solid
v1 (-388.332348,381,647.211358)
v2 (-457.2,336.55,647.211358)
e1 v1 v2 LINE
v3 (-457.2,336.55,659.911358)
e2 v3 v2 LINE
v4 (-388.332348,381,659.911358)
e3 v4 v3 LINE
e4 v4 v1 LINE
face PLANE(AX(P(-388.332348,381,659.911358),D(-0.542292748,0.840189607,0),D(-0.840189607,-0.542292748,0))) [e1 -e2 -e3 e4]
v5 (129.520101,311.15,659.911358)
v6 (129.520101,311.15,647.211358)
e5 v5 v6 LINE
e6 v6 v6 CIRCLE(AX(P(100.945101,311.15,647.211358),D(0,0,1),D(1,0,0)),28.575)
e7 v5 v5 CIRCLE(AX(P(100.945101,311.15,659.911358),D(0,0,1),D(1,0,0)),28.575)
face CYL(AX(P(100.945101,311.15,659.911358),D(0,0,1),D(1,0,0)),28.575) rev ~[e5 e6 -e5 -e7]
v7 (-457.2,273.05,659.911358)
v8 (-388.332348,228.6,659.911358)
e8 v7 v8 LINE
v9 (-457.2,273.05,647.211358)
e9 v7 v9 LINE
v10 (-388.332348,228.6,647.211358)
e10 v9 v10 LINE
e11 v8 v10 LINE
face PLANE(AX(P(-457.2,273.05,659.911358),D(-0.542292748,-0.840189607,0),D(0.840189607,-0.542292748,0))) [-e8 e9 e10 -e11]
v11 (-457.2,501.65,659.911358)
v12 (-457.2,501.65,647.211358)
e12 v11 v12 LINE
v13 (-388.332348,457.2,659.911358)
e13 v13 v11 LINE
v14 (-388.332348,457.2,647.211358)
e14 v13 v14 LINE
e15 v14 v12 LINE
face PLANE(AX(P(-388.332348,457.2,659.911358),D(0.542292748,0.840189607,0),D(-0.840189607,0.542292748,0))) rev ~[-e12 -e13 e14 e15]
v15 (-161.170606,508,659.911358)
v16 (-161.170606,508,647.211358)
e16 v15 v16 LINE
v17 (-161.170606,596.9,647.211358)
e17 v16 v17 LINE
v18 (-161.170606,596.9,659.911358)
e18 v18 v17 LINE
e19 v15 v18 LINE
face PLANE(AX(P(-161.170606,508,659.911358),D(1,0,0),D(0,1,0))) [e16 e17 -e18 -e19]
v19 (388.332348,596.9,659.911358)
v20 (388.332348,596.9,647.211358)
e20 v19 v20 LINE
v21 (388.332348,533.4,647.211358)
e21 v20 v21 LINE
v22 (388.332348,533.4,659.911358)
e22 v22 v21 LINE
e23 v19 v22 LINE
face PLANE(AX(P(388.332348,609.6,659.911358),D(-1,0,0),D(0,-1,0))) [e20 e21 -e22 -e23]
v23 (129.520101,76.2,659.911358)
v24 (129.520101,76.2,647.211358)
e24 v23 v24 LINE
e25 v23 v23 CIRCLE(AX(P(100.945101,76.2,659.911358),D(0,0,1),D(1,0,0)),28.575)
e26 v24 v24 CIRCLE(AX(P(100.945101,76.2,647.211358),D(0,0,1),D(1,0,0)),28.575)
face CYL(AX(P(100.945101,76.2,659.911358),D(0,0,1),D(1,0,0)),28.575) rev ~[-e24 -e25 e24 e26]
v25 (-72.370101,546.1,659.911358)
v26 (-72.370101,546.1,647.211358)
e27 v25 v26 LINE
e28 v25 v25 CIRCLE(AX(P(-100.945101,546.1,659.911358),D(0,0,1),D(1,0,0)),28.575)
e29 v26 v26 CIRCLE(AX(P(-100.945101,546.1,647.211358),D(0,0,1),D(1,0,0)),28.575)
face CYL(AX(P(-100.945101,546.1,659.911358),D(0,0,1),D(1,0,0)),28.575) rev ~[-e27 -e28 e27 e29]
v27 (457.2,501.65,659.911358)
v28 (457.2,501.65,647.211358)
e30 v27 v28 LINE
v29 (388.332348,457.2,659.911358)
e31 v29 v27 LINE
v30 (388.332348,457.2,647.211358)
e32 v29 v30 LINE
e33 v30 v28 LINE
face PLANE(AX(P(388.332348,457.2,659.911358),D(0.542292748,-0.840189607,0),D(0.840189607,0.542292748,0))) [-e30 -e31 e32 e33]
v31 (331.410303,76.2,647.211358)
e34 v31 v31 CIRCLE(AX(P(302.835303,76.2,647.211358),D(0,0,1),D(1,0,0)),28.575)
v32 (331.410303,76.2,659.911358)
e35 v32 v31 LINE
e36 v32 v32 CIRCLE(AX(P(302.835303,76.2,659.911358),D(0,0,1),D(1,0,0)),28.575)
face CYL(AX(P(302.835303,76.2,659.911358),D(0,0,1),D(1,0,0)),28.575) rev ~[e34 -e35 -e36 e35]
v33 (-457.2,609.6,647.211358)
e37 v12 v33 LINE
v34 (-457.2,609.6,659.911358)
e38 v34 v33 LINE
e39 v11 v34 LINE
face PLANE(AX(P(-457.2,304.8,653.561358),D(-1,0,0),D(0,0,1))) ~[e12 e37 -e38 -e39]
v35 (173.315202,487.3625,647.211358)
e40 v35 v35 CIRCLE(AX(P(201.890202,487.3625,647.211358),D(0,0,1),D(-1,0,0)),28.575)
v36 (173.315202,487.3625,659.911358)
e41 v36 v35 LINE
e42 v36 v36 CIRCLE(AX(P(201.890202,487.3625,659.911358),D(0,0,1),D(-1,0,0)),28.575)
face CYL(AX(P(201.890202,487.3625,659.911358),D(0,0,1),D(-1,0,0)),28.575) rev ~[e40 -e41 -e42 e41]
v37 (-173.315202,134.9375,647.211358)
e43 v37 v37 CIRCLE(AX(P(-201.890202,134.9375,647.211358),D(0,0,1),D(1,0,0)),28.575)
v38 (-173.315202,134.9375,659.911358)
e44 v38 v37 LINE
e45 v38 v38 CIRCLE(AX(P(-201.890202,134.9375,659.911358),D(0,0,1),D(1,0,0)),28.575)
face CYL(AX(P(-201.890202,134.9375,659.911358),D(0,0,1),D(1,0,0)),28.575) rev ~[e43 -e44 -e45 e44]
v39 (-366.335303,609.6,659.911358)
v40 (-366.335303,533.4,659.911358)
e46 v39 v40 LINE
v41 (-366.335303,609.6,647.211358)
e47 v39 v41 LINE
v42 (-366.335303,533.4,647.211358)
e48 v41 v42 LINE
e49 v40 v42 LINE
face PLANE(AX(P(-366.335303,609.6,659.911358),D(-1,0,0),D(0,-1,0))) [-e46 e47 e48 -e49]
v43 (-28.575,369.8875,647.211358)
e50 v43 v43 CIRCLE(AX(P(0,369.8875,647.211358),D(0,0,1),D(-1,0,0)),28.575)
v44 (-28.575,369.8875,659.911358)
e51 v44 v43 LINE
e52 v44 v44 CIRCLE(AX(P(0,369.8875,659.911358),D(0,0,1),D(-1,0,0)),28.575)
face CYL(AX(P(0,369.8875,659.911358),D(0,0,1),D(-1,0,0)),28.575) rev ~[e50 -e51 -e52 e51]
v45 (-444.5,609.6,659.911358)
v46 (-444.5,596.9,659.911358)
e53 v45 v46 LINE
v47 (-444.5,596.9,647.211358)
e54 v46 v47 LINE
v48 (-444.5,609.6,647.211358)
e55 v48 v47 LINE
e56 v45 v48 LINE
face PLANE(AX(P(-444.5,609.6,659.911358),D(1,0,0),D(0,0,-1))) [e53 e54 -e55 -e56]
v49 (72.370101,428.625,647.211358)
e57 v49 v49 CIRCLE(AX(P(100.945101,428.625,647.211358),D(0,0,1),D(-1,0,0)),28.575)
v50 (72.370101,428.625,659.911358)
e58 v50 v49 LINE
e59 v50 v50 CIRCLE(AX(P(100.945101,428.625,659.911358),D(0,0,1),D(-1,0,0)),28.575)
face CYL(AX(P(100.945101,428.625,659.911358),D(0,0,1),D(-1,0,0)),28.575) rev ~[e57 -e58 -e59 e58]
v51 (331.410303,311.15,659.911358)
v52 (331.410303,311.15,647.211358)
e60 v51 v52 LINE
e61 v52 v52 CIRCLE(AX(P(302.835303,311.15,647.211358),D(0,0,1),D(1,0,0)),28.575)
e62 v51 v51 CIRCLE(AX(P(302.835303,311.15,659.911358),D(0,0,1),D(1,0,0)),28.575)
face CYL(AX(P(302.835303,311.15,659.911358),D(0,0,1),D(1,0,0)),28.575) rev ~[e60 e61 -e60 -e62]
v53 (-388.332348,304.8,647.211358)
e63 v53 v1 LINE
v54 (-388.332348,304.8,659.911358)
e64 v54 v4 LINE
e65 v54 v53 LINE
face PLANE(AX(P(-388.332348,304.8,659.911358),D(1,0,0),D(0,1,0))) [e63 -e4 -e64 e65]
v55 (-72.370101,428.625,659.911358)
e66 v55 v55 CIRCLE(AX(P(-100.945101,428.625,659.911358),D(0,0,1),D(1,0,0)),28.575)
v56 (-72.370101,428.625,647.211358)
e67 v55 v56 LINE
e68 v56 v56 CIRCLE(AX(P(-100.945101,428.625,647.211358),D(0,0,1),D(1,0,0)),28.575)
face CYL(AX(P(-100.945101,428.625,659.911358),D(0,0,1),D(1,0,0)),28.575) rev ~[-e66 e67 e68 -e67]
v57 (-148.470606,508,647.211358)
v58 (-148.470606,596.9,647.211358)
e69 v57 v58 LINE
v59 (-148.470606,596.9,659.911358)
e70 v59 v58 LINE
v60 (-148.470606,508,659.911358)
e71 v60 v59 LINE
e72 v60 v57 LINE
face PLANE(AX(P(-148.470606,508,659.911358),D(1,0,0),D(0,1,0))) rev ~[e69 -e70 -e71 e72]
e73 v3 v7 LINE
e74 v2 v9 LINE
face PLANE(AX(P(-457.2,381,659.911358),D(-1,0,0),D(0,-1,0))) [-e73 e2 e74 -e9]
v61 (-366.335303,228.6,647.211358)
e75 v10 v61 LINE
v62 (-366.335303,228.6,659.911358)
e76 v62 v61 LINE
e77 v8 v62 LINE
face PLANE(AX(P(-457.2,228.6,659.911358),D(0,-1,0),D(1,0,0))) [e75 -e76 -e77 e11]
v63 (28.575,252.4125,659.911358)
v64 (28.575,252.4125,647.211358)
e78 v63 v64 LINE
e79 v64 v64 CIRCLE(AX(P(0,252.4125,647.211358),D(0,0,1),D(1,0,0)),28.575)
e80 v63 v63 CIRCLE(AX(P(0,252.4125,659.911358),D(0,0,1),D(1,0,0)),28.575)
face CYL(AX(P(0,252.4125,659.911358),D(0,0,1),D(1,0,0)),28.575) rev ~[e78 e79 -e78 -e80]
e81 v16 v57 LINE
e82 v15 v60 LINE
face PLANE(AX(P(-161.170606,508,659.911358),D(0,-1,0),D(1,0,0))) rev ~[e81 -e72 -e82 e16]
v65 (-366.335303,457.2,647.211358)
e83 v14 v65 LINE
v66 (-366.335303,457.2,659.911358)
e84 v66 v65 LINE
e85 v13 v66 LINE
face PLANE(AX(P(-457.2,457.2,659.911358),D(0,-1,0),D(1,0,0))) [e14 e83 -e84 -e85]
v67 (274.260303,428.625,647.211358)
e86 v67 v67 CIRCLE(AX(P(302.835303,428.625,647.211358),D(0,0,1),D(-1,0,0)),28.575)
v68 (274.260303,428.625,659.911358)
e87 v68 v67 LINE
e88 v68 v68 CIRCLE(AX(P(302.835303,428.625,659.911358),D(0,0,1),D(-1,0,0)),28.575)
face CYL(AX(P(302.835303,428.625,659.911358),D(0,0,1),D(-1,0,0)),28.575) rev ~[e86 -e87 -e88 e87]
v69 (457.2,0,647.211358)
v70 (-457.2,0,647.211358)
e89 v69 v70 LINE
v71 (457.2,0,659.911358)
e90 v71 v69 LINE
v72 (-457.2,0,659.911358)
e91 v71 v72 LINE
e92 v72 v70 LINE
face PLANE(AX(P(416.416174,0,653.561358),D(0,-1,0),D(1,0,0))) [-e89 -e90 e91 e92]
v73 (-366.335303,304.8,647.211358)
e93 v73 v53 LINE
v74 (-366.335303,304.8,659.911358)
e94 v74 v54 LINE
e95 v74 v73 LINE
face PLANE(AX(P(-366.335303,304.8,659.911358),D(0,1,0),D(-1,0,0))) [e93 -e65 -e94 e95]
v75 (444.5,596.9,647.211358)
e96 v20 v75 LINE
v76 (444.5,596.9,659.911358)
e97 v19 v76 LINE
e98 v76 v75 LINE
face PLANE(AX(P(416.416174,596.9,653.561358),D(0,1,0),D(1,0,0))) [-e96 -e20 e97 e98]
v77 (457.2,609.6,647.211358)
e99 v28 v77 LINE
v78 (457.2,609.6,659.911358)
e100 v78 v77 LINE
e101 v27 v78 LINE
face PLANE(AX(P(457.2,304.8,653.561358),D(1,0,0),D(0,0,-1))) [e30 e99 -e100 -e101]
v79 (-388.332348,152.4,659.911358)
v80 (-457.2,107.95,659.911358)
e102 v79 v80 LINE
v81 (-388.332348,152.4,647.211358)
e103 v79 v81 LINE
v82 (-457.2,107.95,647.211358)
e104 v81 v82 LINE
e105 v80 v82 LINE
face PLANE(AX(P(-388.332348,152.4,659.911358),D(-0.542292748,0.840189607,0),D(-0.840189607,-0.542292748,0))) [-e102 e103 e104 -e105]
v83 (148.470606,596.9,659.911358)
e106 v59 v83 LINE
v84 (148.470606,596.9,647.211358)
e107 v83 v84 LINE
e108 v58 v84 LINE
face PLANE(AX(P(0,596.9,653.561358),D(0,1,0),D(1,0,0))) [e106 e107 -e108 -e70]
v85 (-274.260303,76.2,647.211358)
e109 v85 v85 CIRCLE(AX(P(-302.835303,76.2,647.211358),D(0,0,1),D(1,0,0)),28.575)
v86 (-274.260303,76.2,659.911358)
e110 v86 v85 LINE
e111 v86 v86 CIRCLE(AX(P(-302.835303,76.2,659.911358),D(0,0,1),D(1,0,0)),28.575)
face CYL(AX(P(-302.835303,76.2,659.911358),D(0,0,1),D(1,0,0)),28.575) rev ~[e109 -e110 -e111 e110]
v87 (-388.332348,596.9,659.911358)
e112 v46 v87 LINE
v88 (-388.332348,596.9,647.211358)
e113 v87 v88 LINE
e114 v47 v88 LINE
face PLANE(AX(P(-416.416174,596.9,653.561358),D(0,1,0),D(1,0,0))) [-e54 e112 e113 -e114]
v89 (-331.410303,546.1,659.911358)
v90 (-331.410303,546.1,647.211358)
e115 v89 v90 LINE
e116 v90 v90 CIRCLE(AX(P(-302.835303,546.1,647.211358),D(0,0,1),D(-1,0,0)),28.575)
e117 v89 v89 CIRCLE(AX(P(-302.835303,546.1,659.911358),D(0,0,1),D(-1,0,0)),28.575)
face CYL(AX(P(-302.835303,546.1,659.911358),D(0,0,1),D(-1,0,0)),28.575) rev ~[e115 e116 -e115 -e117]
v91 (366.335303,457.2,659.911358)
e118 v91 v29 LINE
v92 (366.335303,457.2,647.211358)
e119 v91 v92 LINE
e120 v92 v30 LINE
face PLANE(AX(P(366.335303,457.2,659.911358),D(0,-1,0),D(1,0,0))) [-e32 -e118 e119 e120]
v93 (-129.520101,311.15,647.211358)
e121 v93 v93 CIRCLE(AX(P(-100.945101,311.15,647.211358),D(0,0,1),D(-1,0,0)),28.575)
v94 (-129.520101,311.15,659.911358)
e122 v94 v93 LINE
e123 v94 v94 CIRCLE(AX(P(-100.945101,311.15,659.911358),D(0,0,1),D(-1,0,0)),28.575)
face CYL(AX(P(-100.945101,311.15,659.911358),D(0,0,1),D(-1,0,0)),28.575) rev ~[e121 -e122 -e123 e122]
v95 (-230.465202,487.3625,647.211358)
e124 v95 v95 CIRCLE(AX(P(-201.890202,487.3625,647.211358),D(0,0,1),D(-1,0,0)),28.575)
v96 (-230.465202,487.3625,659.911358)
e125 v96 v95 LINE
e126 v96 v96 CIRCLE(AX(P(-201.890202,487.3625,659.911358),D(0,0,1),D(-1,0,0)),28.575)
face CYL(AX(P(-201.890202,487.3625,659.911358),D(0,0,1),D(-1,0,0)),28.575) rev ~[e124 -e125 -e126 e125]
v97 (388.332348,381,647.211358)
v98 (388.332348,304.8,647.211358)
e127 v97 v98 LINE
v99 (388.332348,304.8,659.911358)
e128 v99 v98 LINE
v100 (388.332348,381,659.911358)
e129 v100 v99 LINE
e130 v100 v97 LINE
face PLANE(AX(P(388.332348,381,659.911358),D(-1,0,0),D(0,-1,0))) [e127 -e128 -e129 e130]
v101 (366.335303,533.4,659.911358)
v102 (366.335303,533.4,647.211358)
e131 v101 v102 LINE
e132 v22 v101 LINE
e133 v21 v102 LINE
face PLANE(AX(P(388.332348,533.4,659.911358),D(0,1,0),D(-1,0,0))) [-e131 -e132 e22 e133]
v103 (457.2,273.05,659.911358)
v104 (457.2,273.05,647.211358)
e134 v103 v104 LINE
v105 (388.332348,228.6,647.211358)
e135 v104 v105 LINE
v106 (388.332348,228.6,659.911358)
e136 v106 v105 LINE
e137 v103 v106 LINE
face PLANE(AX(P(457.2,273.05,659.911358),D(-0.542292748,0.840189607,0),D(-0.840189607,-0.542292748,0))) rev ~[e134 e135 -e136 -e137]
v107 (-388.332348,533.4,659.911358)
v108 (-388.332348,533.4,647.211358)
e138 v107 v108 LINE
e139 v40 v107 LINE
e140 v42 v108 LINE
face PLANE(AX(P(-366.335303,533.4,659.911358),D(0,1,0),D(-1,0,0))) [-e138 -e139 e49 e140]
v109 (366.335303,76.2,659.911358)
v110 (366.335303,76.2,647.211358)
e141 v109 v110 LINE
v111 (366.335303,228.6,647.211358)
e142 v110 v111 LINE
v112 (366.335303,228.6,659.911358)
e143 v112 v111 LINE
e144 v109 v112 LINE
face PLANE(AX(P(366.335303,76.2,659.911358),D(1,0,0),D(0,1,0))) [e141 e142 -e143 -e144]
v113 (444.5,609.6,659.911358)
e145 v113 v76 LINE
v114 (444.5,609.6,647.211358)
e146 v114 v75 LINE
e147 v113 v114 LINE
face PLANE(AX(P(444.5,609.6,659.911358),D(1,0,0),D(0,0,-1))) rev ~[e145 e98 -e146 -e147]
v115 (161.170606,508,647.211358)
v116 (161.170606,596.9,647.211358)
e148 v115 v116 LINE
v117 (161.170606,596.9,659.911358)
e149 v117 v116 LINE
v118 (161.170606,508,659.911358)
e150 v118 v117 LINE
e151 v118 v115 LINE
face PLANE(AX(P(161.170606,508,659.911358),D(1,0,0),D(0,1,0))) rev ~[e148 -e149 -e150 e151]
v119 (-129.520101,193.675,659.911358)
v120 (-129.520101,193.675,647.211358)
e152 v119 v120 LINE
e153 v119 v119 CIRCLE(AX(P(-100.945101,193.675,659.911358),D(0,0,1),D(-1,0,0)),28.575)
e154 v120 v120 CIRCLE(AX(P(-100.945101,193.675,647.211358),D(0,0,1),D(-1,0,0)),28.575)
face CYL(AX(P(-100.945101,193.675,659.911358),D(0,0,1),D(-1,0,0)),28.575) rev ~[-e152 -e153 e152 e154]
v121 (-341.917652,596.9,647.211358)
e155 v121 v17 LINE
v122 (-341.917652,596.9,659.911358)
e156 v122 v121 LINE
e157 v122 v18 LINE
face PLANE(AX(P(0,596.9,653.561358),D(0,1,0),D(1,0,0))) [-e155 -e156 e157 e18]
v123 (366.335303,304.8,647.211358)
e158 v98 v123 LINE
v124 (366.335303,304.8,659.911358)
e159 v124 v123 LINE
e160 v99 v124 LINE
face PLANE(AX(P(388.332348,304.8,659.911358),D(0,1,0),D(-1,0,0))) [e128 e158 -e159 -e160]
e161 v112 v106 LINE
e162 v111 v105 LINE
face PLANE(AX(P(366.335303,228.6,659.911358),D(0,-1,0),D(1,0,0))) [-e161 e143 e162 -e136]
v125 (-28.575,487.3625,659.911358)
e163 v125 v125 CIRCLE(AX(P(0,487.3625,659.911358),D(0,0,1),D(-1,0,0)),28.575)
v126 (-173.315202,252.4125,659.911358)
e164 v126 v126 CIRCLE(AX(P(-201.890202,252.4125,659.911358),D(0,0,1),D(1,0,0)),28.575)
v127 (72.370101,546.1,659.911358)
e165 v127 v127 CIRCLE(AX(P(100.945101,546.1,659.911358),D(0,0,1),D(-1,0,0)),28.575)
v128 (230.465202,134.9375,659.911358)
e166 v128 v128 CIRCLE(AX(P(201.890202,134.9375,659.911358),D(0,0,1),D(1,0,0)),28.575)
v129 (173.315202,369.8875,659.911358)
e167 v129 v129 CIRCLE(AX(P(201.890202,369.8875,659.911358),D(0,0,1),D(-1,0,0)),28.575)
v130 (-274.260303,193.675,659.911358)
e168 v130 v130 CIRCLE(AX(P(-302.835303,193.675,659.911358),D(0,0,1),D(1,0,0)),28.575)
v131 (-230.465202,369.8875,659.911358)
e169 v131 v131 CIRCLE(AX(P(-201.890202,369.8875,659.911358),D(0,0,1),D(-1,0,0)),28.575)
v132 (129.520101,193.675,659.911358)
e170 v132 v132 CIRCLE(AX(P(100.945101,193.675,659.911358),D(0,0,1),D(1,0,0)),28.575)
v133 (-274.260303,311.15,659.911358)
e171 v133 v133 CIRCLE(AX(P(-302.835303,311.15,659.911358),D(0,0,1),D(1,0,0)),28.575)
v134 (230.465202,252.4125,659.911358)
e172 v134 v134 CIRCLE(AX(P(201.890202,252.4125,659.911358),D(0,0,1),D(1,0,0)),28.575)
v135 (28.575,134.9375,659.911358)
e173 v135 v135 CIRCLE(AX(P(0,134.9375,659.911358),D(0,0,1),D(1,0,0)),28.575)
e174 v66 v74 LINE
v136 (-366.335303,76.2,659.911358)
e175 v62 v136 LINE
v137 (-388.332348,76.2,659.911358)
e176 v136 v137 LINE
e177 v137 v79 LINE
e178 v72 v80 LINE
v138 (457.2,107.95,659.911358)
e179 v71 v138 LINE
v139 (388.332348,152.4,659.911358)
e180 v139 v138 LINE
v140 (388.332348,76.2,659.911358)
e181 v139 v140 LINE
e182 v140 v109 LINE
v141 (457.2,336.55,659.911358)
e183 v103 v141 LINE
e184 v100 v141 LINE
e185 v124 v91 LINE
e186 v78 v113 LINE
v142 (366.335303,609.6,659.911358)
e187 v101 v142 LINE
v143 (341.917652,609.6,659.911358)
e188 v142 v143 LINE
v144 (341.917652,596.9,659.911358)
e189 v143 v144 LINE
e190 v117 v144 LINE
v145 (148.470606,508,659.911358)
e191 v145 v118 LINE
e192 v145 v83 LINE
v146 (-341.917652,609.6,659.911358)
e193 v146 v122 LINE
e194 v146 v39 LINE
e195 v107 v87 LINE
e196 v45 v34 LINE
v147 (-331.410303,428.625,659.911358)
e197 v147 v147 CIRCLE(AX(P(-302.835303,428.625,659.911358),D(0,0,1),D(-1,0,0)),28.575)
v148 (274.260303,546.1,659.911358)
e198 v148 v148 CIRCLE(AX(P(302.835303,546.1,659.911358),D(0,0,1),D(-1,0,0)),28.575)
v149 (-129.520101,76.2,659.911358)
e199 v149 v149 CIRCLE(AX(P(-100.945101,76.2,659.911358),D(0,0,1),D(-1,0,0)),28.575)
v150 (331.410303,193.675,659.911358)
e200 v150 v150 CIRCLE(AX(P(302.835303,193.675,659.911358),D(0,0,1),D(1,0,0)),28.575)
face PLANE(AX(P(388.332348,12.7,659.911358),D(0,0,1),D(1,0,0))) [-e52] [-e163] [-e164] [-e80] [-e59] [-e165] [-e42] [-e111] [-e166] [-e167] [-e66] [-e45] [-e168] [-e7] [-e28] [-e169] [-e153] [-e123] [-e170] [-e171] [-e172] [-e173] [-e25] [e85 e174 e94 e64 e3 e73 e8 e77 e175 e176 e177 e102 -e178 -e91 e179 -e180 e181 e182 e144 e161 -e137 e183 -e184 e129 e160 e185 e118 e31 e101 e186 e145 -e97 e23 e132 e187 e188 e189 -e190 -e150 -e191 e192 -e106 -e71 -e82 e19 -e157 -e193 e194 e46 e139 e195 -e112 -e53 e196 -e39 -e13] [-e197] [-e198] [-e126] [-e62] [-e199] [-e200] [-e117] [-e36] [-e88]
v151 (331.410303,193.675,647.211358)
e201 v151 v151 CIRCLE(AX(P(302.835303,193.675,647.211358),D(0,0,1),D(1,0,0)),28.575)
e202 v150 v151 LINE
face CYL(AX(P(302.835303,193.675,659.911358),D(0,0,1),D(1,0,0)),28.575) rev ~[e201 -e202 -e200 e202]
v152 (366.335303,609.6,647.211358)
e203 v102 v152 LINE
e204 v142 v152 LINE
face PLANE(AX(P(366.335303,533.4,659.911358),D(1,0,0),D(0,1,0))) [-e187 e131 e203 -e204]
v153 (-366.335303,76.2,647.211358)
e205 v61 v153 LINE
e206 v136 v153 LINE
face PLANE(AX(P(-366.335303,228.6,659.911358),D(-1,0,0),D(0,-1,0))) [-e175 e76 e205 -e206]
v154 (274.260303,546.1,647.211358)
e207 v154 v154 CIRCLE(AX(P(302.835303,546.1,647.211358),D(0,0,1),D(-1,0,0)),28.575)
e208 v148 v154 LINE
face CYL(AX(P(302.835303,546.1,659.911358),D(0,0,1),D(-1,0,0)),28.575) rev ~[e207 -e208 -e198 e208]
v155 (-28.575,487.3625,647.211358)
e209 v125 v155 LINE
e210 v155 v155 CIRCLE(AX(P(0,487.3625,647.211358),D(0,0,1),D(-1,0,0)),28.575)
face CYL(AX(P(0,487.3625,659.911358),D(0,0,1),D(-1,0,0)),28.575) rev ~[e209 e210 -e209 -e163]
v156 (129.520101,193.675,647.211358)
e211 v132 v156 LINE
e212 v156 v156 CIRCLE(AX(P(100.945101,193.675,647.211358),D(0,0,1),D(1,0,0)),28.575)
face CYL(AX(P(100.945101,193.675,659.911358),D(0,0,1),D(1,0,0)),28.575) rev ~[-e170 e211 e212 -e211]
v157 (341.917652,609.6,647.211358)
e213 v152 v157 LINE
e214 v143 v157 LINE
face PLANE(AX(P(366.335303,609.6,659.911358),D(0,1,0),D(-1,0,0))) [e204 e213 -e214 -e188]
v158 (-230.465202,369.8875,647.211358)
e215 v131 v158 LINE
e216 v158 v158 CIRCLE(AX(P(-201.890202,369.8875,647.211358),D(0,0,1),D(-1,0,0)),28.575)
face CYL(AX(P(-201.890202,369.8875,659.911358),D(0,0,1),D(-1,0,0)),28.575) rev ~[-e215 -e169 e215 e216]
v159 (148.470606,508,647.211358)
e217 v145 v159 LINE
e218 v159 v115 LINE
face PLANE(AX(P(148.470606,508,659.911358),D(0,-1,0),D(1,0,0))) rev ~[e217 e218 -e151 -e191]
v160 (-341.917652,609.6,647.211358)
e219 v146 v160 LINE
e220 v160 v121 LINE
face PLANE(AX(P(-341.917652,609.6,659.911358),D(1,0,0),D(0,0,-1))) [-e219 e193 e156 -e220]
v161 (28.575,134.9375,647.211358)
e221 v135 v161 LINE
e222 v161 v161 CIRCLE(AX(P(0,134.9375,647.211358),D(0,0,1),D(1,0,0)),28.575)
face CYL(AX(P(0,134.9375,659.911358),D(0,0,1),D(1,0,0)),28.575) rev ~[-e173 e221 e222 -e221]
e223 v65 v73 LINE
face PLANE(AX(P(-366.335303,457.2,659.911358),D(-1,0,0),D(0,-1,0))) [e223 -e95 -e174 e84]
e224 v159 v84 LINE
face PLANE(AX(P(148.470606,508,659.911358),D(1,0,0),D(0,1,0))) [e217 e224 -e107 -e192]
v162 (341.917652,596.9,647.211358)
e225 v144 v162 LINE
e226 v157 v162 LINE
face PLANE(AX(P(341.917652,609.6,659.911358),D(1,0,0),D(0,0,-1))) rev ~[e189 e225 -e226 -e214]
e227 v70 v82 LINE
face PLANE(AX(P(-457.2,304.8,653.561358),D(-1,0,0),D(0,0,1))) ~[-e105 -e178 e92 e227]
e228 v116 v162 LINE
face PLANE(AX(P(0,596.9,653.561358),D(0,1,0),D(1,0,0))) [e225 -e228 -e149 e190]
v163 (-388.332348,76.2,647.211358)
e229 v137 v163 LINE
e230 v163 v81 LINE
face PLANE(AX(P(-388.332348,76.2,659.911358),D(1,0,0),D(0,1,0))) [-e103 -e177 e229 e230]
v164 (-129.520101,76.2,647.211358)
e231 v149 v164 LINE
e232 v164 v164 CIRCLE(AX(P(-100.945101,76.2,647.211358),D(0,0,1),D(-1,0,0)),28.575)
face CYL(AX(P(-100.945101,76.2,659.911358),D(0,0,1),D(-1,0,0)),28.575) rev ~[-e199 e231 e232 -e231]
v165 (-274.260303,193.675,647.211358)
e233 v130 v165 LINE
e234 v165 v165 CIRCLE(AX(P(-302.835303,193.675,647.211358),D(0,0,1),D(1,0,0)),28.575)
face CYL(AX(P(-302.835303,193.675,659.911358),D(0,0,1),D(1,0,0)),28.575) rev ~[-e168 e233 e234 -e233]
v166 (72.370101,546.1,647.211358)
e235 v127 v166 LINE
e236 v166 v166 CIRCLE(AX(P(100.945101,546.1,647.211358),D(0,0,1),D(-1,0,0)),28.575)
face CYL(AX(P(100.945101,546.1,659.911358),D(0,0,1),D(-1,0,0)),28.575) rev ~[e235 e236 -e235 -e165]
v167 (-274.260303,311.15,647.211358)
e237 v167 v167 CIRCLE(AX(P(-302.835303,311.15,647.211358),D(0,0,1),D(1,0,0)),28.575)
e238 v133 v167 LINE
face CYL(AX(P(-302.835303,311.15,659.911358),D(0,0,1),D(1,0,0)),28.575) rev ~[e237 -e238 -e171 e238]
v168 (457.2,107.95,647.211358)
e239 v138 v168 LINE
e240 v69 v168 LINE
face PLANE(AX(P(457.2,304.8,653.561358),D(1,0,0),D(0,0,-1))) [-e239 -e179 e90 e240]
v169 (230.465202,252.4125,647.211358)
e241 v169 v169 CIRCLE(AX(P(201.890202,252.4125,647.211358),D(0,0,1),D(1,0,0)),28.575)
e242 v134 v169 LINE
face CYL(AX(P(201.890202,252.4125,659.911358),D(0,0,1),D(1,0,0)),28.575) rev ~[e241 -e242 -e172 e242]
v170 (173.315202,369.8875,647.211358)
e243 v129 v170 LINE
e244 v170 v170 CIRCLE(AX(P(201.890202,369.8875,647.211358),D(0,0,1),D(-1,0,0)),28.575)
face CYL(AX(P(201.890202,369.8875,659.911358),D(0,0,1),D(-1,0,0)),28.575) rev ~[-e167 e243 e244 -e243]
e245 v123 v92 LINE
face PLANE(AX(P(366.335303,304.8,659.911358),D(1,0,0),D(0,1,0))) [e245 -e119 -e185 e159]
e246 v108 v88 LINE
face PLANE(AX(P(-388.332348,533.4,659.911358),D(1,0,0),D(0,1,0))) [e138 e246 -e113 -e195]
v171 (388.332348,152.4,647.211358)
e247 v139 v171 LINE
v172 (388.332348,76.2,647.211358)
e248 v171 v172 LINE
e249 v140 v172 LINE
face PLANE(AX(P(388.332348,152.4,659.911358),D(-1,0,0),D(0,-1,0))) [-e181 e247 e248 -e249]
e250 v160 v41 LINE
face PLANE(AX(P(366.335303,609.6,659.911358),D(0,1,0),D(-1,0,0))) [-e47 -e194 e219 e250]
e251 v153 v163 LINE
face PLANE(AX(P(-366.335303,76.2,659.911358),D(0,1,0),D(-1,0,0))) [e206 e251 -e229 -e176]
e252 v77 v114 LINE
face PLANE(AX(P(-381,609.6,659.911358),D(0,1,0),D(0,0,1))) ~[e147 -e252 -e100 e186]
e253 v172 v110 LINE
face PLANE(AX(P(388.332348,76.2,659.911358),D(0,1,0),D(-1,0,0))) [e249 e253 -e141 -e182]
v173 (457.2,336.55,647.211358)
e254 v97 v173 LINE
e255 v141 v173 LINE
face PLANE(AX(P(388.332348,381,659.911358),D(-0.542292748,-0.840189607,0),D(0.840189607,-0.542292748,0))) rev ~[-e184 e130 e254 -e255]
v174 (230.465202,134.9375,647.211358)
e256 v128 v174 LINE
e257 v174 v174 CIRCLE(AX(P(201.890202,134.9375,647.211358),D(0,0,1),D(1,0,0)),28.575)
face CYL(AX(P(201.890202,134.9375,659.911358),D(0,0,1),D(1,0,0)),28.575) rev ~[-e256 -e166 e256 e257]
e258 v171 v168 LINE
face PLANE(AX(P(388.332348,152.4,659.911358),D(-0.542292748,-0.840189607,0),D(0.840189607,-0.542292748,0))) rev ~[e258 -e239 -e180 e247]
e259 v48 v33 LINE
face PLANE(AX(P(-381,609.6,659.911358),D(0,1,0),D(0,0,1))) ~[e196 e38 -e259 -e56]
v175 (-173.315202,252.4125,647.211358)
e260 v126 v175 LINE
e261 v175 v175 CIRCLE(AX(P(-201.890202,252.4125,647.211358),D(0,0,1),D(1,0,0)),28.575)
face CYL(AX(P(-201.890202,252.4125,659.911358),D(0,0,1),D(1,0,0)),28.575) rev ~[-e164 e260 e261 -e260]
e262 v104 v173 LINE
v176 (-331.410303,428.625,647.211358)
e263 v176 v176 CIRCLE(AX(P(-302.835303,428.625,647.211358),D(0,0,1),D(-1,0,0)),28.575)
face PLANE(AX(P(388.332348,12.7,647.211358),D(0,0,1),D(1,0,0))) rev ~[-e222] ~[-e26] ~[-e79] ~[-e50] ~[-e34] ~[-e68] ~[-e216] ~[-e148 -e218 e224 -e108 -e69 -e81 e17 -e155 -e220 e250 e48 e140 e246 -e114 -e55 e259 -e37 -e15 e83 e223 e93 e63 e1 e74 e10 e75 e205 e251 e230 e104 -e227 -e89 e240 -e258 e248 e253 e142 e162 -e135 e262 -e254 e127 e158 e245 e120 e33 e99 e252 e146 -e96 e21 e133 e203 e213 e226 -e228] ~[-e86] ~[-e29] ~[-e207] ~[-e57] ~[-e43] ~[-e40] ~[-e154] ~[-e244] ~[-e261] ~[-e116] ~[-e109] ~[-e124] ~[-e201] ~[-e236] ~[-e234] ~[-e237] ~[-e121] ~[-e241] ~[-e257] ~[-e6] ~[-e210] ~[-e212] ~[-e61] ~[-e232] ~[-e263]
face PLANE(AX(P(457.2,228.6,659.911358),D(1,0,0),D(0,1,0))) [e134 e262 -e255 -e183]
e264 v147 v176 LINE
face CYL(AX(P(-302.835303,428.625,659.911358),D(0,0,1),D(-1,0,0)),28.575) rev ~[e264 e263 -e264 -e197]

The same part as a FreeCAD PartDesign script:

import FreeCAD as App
import Part
import Sketcher
Q = App.Units.Quantity


def add_polygon(sketch, points):
    """Adds a closed chain of lines whose ends are joined by coincident constraints."""
    first, n = sketch.GeometryCount, len(points)
    for a, b in zip(points, points[1:] + points[:1]):
        sketch.addGeometry(Part.LineSegment(App.Vector(*a, 0), App.Vector(*b, 0)), False)
    for i in range(n):
        sketch.addConstraint(Sketcher.Constraint("Coincident", first + i, 2, first + (i + 1) % n, 1))

doc = App.newDocument("Part")
params = doc.addObject("Spreadsheet::Sheet", "Params")
for row, (alias, value) in enumerate([
    ("sketch1_width", "30 in"),
    ("sketch1_height", "0.5 in"),
    ("pad1_length", "24 in"),
    ("sketch2_width", "24 in"),
    ("sketch2_height", "0.5 in"),
    ("pad2_length", "3 in"),
    ("sketch3_width", "36 in"),
    ("sketch3_height", "3 in"),
    ("sketch3_height2", "6 in"),
    ("pocket1_length", "0.5 in"),
    ("sketch4_height", "0.5 in"),
    ("pocket2_length", "0.5 in"),
    ("sketch5_height", "1.75 in"),
    ("pocket3_length", "0.5 in"),
    ("sketch6_width", "0.5 in"),
    ("sketch6_height", "3.5 in"),
    ("pocket4_length", "0.5 in"),
    ("sketch7_diameter", "2.25 in"),
    ("sketch8_width", "0.5 in"),
    ("pad3_length", "3.5 in"),
    ("sketch9_height", "0.5 in"),
    ("pad4_length", "0.5 in"),
], start=1):
    params.set(f"A{row}", alias)
    params.set(f"B{row}", "=" + value)
    params.setAlias(f"B{row}", alias)

body = doc.addObject("PartDesign::Body", "Body")

# Sketch on XZ plane
sketch1 = body.newObject("Sketcher::SketchObject", "Sketch")
sketch1.AttachmentSupport = (doc.getObject("XZ_Plane"), [""])
sketch1.MapMode = "FlatFace"
add_polygon(sketch1, [(-381, 647), (-381, 660), (381, 660), (381, 647)])  # lines 0-3
sketch1.addConstraint([
    Sketcher.Constraint("Vertical", 0),
    Sketcher.Constraint("Horizontal", 1),
    Sketcher.Constraint("Vertical", 2),
    Sketcher.Constraint("Horizontal", 3),
    Sketcher.Constraint("DistanceX", 1, 1, 1, 2, Q("30 in")),
    Sketcher.Constraint("DistanceY", 0, 1, 0, 2, Q("0.5 in")),
    Sketcher.Constraint("DistanceX", 0, 2, -1, 1, Q("15 in")),
    Sketcher.Constraint("DistanceY", -1, 1, 0, 2, 659.911358),
])
sketch1.setExpression("Constraints[8]", "Params.sketch1_width")
sketch1.setExpression("Constraints[9]", "Params.sketch1_height")
pad1 = body.newObject("PartDesign::Pad", "Pad")
pad1.Profile = sketch1
pad1.setExpression("Length", "Params.pad1_length")
pad1.Reversed = True

# Sketch on YZ plane
sketch2 = body.newObject("Sketcher::SketchObject", "Sketch001")
sketch2.AttachmentSupport = (doc.getObject("YZ_Plane"), [""])
sketch2.MapMode = "FlatFace"
sketch2.AttachmentOffset = App.Placement(App.Vector(0, 0, 15 * 25.4), App.Rotation())
add_polygon(sketch2, [(610, 660), (0, 660), (0, 647), (610, 647)])  # lines 0-3
sketch2.addConstraint([
    Sketcher.Constraint("Horizontal", 0),
    Sketcher.Constraint("Vertical", 1),
    Sketcher.Constraint("Horizontal", 2),
    Sketcher.Constraint("Vertical", 3),
    Sketcher.Constraint("PointOnObject", 0, 2, -2),
    Sketcher.Constraint("DistanceX", 0, 2, 0, 1, Q("24 in")),
    Sketcher.Constraint("DistanceY", 1, 2, 1, 1, Q("0.5 in")),
    Sketcher.Constraint("DistanceY", -1, 1, 0, 2, 659.911358),
])
sketch2.setExpression("Constraints[9]", "Params.sketch2_width")
sketch2.setExpression("Constraints[10]", "Params.sketch2_height")
pad2 = body.newObject("PartDesign::Pad", "Pad001")
pad2.Profile = sketch2
pad2.setExpression("Length", "Params.pad2_length")
doc.recompute()

mirrored = body.newObject("PartDesign::Mirrored", "Mirrored")
mirrored.Originals = [pad2]
mirrored.MirrorPlane = (doc.getObject("YZ_Plane"), [""])
body.Tip = mirrored

# Sketch on XY plane
sketch3 = body.newObject("Sketcher::SketchObject", "Sketch002")
sketch3.AttachmentSupport = (doc.getObject("XY_Plane"), [""])
sketch3.MapMode = "FlatFace"
sketch3.AttachmentOffset = App.Placement(App.Vector(0, 0, 659.911358), App.Rotation())
add_polygon(sketch3, [(-568, 721), (-568, -111), (568, -111), (568, 721)])  # lines 0-3
add_polygon(sketch3, [(-366, 610), (366, 610), (366, 533), (388, 533), (388, 610), (457, 610), (457, 457), (366, 457), (366, 305), (388, 305), (388, 381), (457, 381), (457, 229), (366, 229), (366, 76), (388, 76), (388, 152), (457, 152), (457, 0), (-457, 0), (-457, 152), (-388, 152), (-388, 76), (-366, 76), (-366, 229), (-457, 229), (-457, 381), (-388, 381), (-388, 305), (-366, 305), (-366, 457), (-457, 457), (-457, 610), (-388, 610), (-388, 533), (-366, 533)])  # lines 4-39
sketch3.addConstraint([
    Sketcher.Constraint("Vertical", 0),
    Sketcher.Constraint("Horizontal", 1),
    Sketcher.Constraint("Vertical", 2),
    Sketcher.Constraint("Horizontal", 3),
    Sketcher.Constraint("Horizontal", 4),
    Sketcher.Constraint("Vertical", 5),
    Sketcher.Constraint("Horizontal", 6),
    Sketcher.Constraint("Vertical", 7),
    Sketcher.Constraint("Horizontal", 8),
    Sketcher.Constraint("Vertical", 9),
    Sketcher.Constraint("Horizontal", 10),
    Sketcher.Constraint("Vertical", 11),
    Sketcher.Constraint("Horizontal", 12),
    Sketcher.Constraint("Vertical", 13),
    Sketcher.Constraint("Horizontal", 14),
    Sketcher.Constraint("Vertical", 15),
    Sketcher.Constraint("Horizontal", 16),
    Sketcher.Constraint("Vertical", 17),
    Sketcher.Constraint("Horizontal", 18),
    Sketcher.Constraint("Vertical", 19),
    Sketcher.Constraint("Horizontal", 20),
    Sketcher.Constraint("Vertical", 21),
    Sketcher.Constraint("Horizontal", 22),
    Sketcher.Constraint("Vertical", 23),
    Sketcher.Constraint("Horizontal", 24),
    Sketcher.Constraint("Vertical", 25),
    Sketcher.Constraint("Horizontal", 26),
    Sketcher.Constraint("Vertical", 27),
    Sketcher.Constraint("Horizontal", 28),
    Sketcher.Constraint("Vertical", 29),
    Sketcher.Constraint("Horizontal", 30),
    Sketcher.Constraint("Vertical", 31),
    Sketcher.Constraint("Horizontal", 32),
    Sketcher.Constraint("Vertical", 33),
    Sketcher.Constraint("Horizontal", 34),
    Sketcher.Constraint("Vertical", 35),
    Sketcher.Constraint("Horizontal", 36),
    Sketcher.Constraint("Vertical", 37),
    Sketcher.Constraint("Horizontal", 38),
    Sketcher.Constraint("Vertical", 39),
    Sketcher.Constraint("Symmetric", 21, 2, 22, 2, -1, 1),
    Sketcher.Constraint("Symmetric", 19, 2, 24, 2, -2),
    Sketcher.Constraint("Symmetric", 17, 2, 26, 2, -2),
    Sketcher.Constraint("Symmetric", 15, 2, 28, 2, -2),
    Sketcher.Constraint("Symmetric", 13, 2, 30, 2, -2),
    Sketcher.Constraint("Symmetric", 11, 2, 32, 2, -2),
    Sketcher.Constraint("Symmetric", 9, 2, 34, 2, -2),
    Sketcher.Constraint("Symmetric", 7, 2, 36, 2, -2),
    Sketcher.Constraint("Symmetric", 5, 2, 38, 2, -2),
    Sketcher.Constraint("Horizontal", 4, 2, 7, 2),
    Sketcher.Constraint("Vertical", 5, 2, 10, 2),
    Sketcher.Constraint("Vertical", 7, 2, 12, 2),
    Sketcher.Constraint("Vertical", 9, 2, 14, 2),
    Sketcher.Constraint("Vertical", 11, 2, 16, 2),
    Sketcher.Constraint("Vertical", 13, 2, 18, 2),
    Sketcher.Constraint("Vertical", 15, 2, 20, 2),
    Sketcher.Constraint("Equal", 9, 11),
    Sketcher.Constraint("Equal", 7, 13),
    Sketcher.Constraint("Equal", 11, 15),
    Sketcher.Constraint("Equal", 15, 17),
    Sketcher.Constraint("Equal", 13, 19),
    Sketcher.Constraint("Equal", 17, 21),
    Sketcher.Constraint("DistanceX", 22, 2, 22, 1, Q("36 in")),
    Sketcher.Constraint("DistanceY", 5, 2, 5, 1, Q("3 in")),
    Sketcher.Constraint("DistanceY", 9, 2, 9, 1, Q("6 in")),
    Sketcher.Constraint("DistanceX", 1, 1, 1, 2, 1136.21),
    Sketcher.Constraint("DistanceY", 0, 2, 0, 1, 831.41),
    Sketcher.Constraint("DistanceX", 8, 1, 8, 2, 68.867652),
    Sketcher.Constraint("DistanceX", 0, 2, -1, 1, 568.105),
    Sketcher.Constraint("DistanceY", 0, 2, -1, 1, 110.905),
    Sketcher.Constraint("DistanceX", 4, 1, 4, 2, 732.670606),
])
sketch3.setExpression("Constraints[102]", "Params.sketch3_width")
sketch3.setExpression("Constraints[103]", "Params.sketch3_height")
sketch3.setExpression("Constraints[104]", "Params.sketch3_height2")
pocket1 = body.newObject("PartDesign::Pocket", "Pocket")
pocket1.Profile = sketch3
pocket1.setExpression("Length", "Params.pocket1_length")

# Sketch on XZ plane
sketch4 = body.newObject("Sketcher::SketchObject", "Sketch003")
sketch4.AttachmentSupport = (doc.getObject("XZ_Plane"), [""])
sketch4.MapMode = "FlatFace"
sketch4.AttachmentOffset = App.Placement(App.Vector(0, 0, -24 * 25.4), App.Rotation())
add_polygon(sketch4, [(-444, 647), (-444, 660), (-388, 660), (-388, 647)])  # lines 0-3
add_polygon(sketch4, [(-342, 647), (-342, 660), (342, 660), (342, 647)])  # lines 4-7
add_polygon(sketch4, [(388, 647), (388, 660), (444, 660), (444, 647)])  # lines 8-11
sketch4.addConstraint([
    Sketcher.Constraint("Vertical", 0),
    Sketcher.Constraint("Horizontal", 1),
    Sketcher.Constraint("Vertical", 2),
    Sketcher.Constraint("Horizontal", 3),
    Sketcher.Constraint("Vertical", 4),
    Sketcher.Constraint("Horizontal", 5),
    Sketcher.Constraint("Vertical", 6),
    Sketcher.Constraint("Horizontal", 7),
    Sketcher.Constraint("Vertical", 8),
    Sketcher.Constraint("Horizontal", 9),
    Sketcher.Constraint("Vertical", 10),
    Sketcher.Constraint("Horizontal", 11),
    Sketcher.Constraint("Symmetric", 1, 2, 8, 2, -2),
    Sketcher.Constraint("Symmetric", 3, 2, 10, 2, -2),
    Sketcher.Constraint("Horizontal", 1, 2, 4, 2),
    Sketcher.Constraint("Horizontal", 3, 2, 6, 2),
    Sketcher.Constraint("DistanceY", 0, 1, 0, 2, Q("0.5 in")),
    Sketcher.Constraint("DistanceX", 0, 2, -1, 1, Q("17.5 in")),
    Sketcher.Constraint("DistanceX", 1, 2, 5, 2, Q("28.75 in")),
    Sketcher.Constraint("DistanceX", 4, 2, 8, 2, Q("28.75 in")),
    Sketcher.Constraint("DistanceX", 1, 1, 1, 2, 56.167652),
    Sketcher.Constraint("DistanceY", -1, 1, 0, 2, 659.911358),
])
sketch4.setExpression("Constraints[28]", "Params.sketch4_height")
pocket2 = body.newObject("PartDesign::Pocket", "Pocket001")
pocket2.Profile = sketch4
pocket2.setExpression("Length", "Params.pocket2_length")
pocket2.Reversed = True

# Sketch on XY plane
sketch5 = body.newObject("Sketcher::SketchObject", "Sketch004")
sketch5.AttachmentSupport = (doc.getObject("XY_Plane"), [""])
sketch5.MapMode = "FlatFace"
sketch5.AttachmentOffset = App.Placement(App.Vector(0, 0, 659.911358), App.Rotation())
add_polygon(sketch5, [(-388, 457), (-457, 502), (-457, 457)])  # lines 0-2
add_polygon(sketch5, [(-457, 337), (-388, 381), (-457, 381)])  # lines 3-5
add_polygon(sketch5, [(-457, 108), (-388, 152), (-457, 152)])  # lines 6-8
add_polygon(sketch5, [(457, 152), (388, 152), (457, 108)])  # lines 9-11
add_polygon(sketch5, [(457, 381), (388, 381), (457, 337)])  # lines 12-14
add_polygon(sketch5, [(388, 457), (457, 457), (457, 502)])  # lines 15-17
add_polygon(sketch5, [(-388, 229), (-457, 273), (-457, 229)])  # lines 18-20
add_polygon(sketch5, [(388, 229), (457, 229), (457, 273)])  # lines 21-23
sketch5.addConstraint([
    Sketcher.Constraint("Vertical", 1),
    Sketcher.Constraint("Horizontal", 2),
    Sketcher.Constraint("Horizontal", 4),
    Sketcher.Constraint("Vertical", 5),
    Sketcher.Constraint("Horizontal", 7),
    Sketcher.Constraint("Vertical", 8),
    Sketcher.Constraint("Horizontal", 9),
    Sketcher.Constraint("Vertical", 11),
    Sketcher.Constraint("Horizontal", 12),
    Sketcher.Constraint("Vertical", 14),
    Sketcher.Constraint("Horizontal", 15),
    Sketcher.Constraint("Vertical", 16),
    Sketcher.Constraint("Vertical", 19),
    Sketcher.Constraint("Horizontal", 20),
    Sketcher.Constraint("Horizontal", 21),
    Sketcher.Constraint("Vertical", 22),
    Sketcher.Constraint("Symmetric", 6, 2, 9, 2, -2),
    Sketcher.Constraint("Symmetric", 8, 2, 10, 2, -2),
    Sketcher.Constraint("Symmetric", 3, 2, 12, 2, -2),
    Sketcher.Constraint("Symmetric", 5, 2, 13, 2, -2),
    Sketcher.Constraint("Symmetric", 1, 2, 15, 2, -2),
    Sketcher.Constraint("Symmetric", 19, 2, 21, 2, -2),
    Sketcher.Constraint("Parallel", 3, 6),
    Sketcher.Constraint("Parallel", 0, 10),
    Sketcher.Constraint("Parallel", 6, 17),
    Sketcher.Constraint("Parallel", 13, 18),
    Sketcher.Constraint("Parallel", 17, 23),
    Sketcher.Constraint("Horizontal", 0, 2, 16, 2),
    Sketcher.Constraint("Horizontal", 18, 2, 22, 2),
    Sketcher.Constraint("Vertical", 2, 2, 3, 2),
    Sketcher.Constraint("Vertical", 1, 2, 4, 2),
    Sketcher.Constraint("Vertical", 3, 2, 6, 2),
    Sketcher.Constraint("Vertical", 5, 2, 7, 2),
    Sketcher.Constraint("Vertical", 8, 2, 18, 2),
    Sketcher.Constraint("Vertical", 6, 2, 20, 2),
    Sketcher.Constraint("DistanceX", 0, 2, -1, 1, Q("18 in")),
    Sketcher.Constraint("DistanceY", -1, 1, 1, 2, Q("18 in")),
    Sketcher.Constraint("DistanceY", -1, 1, 3, 2, Q("15 in")),
    Sketcher.Constraint("DistanceY", -1, 1, 6, 2, Q("6 in")),
    Sketcher.Constraint("DistanceY", -1, 1, 19, 2, Q("9 in")),
    Sketcher.Constraint("DistanceY", 1, 2, 1, 1, Q("1.75 in")),
    Sketcher.Constraint("DistanceX", 2, 1, 2, 2, 68.867652),
])
sketch5.setExpression("Constraints[64]", "Params.sketch5_height")
pocket3 = body.newObject("PartDesign::Pocket", "Pocket002")
pocket3.Profile = sketch5
pocket3.setExpression("Length", "Params.pocket3_length")

# Sketch on XY plane
sketch6 = body.newObject("Sketcher::SketchObject", "Sketch005")
sketch6.AttachmentSupport = (doc.getObject("XY_Plane"), [""])
sketch6.MapMode = "FlatFace"
sketch6.AttachmentOffset = App.Placement(App.Vector(0, 0, 659.911358), App.Rotation())
add_polygon(sketch6, [(148, 597), (148, 508), (161, 508), (161, 597)])  # lines 0-3
add_polygon(sketch6, [(-161, 597), (-161, 508), (-148, 508), (-148, 597)])  # lines 4-7
sketch6.addConstraint([
    Sketcher.Constraint("Vertical", 0),
    Sketcher.Constraint("Horizontal", 1),
    Sketcher.Constraint("Vertical", 2),
    Sketcher.Constraint("Horizontal", 3),
    Sketcher.Constraint("Vertical", 4),
    Sketcher.Constraint("Horizontal", 5),
    Sketcher.Constraint("Vertical", 6),
    Sketcher.Constraint("Horizontal", 7),
    Sketcher.Constraint("Symmetric", 1, 2, 4, 2, -2),
    Sketcher.Constraint("Symmetric", 3, 2, 6, 2, -2),
    Sketcher.Constraint("DistanceX", 1, 1, 1, 2, Q("0.5 in")),
    Sketcher.Constraint("DistanceY", 0, 2, 0, 1, Q("3.5 in")),
    Sketcher.Constraint("DistanceY", -1, 1, 0, 2, Q("20 in")),
    Sketcher.Constraint("DistanceX", -1, 1, 0, 2, 148.470606),
])
sketch6.setExpression("Constraints[18]", "Params.sketch6_width")
sketch6.setExpression("Constraints[19]", "Params.sketch6_height")
pocket4 = body.newObject("PartDesign::Pocket", "Pocket003")
pocket4.Profile = sketch6
pocket4.setExpression("Length", "Params.pocket4_length")
doc.recompute()

datumplane = body.newObject("PartDesign::Plane", "DatumPlane")
datumplane.AttachmentSupport = (doc.getObject("XZ_Plane"), [""])
datumplane.MapMode = "FlatFace"
datumplane.AttachmentOffset = App.Placement(App.Vector(0, 0, -12 * 25.4), App.Rotation())
mirrored2 = body.newObject("PartDesign::Mirrored", "Mirrored001")
mirrored2.Originals = [pocket2, pocket4]
mirrored2.MirrorPlane = (datumplane, [""])
body.Tip = mirrored2

# Sketch on XY plane
sketch7 = body.newObject("Sketcher::SketchObject", "Sketch006")
sketch7.AttachmentSupport = (doc.getObject("XY_Plane"), [""])
sketch7.MapMode = "FlatFace"
sketch7.AttachmentOffset = App.Placement(App.Vector(0, 0, 659.911358), App.Rotation())
sketch7.addGeometry([
    Part.Circle(App.Vector(-303, 311, 0), App.Vector(0, 0, 1), 29),  # 0
    Part.Circle(App.Vector(-303, 194, 0), App.Vector(0, 0, 1), 29),  # 1
    Part.Circle(App.Vector(-303, 76, 0), App.Vector(0, 0, 1), 29),  # 2
    Part.Circle(App.Vector(-101, 76, 0), App.Vector(0, 0, 1), 29),  # 3
    Part.Circle(App.Vector(-101, 194, 0), App.Vector(0, 0, 1), 29),  # 4
    Part.Circle(App.Vector(-101, 311, 0), App.Vector(0, 0, 1), 29),  # 5
    Part.Circle(App.Vector(-202, 252, 0), App.Vector(0, 0, 1), 29),  # 6
    Part.Circle(App.Vector(-202, 135, 0), App.Vector(0, 0, 1), 29),  # 7
    Part.Circle(App.Vector(101, 194, 0), App.Vector(0, 0, 1), 29),  # 8
    Part.Circle(App.Vector(303, 194, 0), App.Vector(0, 0, 1), 29),  # 9
    Part.Circle(App.Vector(101, 311, 0), App.Vector(0, 0, 1), 29),  # 10
    Part.Circle(App.Vector(303, 311, 0), App.Vector(0, 0, 1), 29),  # 11
    Part.Circle(App.Vector(101, 76, 0), App.Vector(0, 0, 1), 29),  # 12
    Part.Circle(App.Vector(303, 76, 0), App.Vector(0, 0, 1), 29),  # 13
    Part.Circle(App.Vector(0, 135, 0), App.Vector(0, 0, 1), 29),  # 14
    Part.Circle(App.Vector(0, 252, 0), App.Vector(0, 0, 1), 29),  # 15
    Part.Circle(App.Vector(202, 252, 0), App.Vector(0, 0, 1), 29),  # 16
    Part.Circle(App.Vector(202, 135, 0), App.Vector(0, 0, 1), 29),  # 17
    Part.Circle(App.Vector(303, 546, 0), App.Vector(0, 0, 1), 29),  # 18
    Part.Circle(App.Vector(303, 429, 0), App.Vector(0, 0, 1), 29),  # 19
    Part.Circle(App.Vector(202, 370, 0), App.Vector(0, 0, 1), 29),  # 20
    Part.Circle(App.Vector(202, 487, 0), App.Vector(0, 0, 1), 29),  # 21
    Part.Circle(App.Vector(101, 546, 0), App.Vector(0, 0, 1), 29),  # 22
    Part.Circle(App.Vector(101, 429, 0), App.Vector(0, 0, 1), 29),  # 23
    Part.Circle(App.Vector(0, 487, 0), App.Vector(0, 0, 1), 29),  # 24
    Part.Circle(App.Vector(0, 370, 0), App.Vector(0, 0, 1), 29),  # 25
    Part.Circle(App.Vector(-101, 429, 0), App.Vector(0, 0, 1), 29),  # 26
    Part.Circle(App.Vector(-101, 546, 0), App.Vector(0, 0, 1), 29),  # 27
    Part.Circle(App.Vector(-202, 487, 0), App.Vector(0, 0, 1), 29),  # 28
    Part.Circle(App.Vector(-303, 546, 0), App.Vector(0, 0, 1), 29),  # 29
    Part.Circle(App.Vector(-303, 429, 0), App.Vector(0, 0, 1), 29),  # 30
    Part.Circle(App.Vector(-202, 370, 0), App.Vector(0, 0, 1), 29),  # 31
], False)
sketch7.addConstraint([
    Sketcher.Constraint("Equal", 0, 1),
    Sketcher.Constraint("Equal", 1, 2),
    Sketcher.Constraint("Equal", 2, 3),
    Sketcher.Constraint("Equal", 3, 4),
    Sketcher.Constraint("Equal", 4, 5),
    Sketcher.Constraint("Equal", 5, 6),
    Sketcher.Constraint("Equal", 6, 7),
    Sketcher.Constraint("Equal", 7, 8),
    Sketcher.Constraint("Equal", 8, 9),
    Sketcher.Constraint("Equal", 9, 10),
    Sketcher.Constraint("Equal", 10, 11),
    Sketcher.Constraint("Equal", 11, 12),
    Sketcher.Constraint("Equal", 12, 13),
    Sketcher.Constraint("Equal", 13, 14),
    Sketcher.Constraint("Equal", 14, 15),
    Sketcher.Constraint("Equal", 15, 16),
    Sketcher.Constraint("Equal", 16, 17),
    Sketcher.Constraint("Equal", 17, 18),
    Sketcher.Constraint("Equal", 18, 19),
    Sketcher.Constraint("Equal", 19, 20),
    Sketcher.Constraint("Equal", 20, 21),
    Sketcher.Constraint("Equal", 21, 22),
    Sketcher.Constraint("Equal", 22, 23),
    Sketcher.Constraint("Equal", 23, 24),
    Sketcher.Constraint("Equal", 24, 25),
    Sketcher.Constraint("Equal", 25, 26),
    Sketcher.Constraint("Equal", 26, 27),
    Sketcher.Constraint("Equal", 27, 28),
    Sketcher.Constraint("Equal", 28, 29),
    Sketcher.Constraint("Equal", 29, 30),
    Sketcher.Constraint("Equal", 30, 31),
    Sketcher.Constraint("Symmetric", 4, 3, 8, 3, -2),
    Sketcher.Constraint("Symmetric", 1, 3, 9, 3, -2),
    Sketcher.Constraint("Symmetric", 5, 3, 10, 3, -2),
    Sketcher.Constraint("Symmetric", 0, 3, 11, 3, -2),
    Sketcher.Constraint("Symmetric", 3, 3, 12, 3, -2),
    Sketcher.Constraint("Symmetric", 2, 3, 13, 3, -2),
    Sketcher.Constraint("Symmetric", 6, 3, 16, 3, -2),
    Sketcher.Constraint("Symmetric", 7, 3, 17, 3, -2),
    Sketcher.Constraint("Symmetric", 23, 3, 26, 3, -2),
    Sketcher.Constraint("Symmetric", 22, 3, 27, 3, -2),
    Sketcher.Constraint("Symmetric", 21, 3, 28, 3, -2),
    Sketcher.Constraint("Symmetric", 18, 3, 29, 3, -2),
    Sketcher.Constraint("Symmetric", 19, 3, 30, 3, -2),
    Sketcher.Constraint("Symmetric", 20, 3, 31, 3, -2),
    Sketcher.Constraint("PointOnObject", 14, 3, -2),
    Sketcher.Constraint("PointOnObject", 15, 3, -2),
    Sketcher.Constraint("PointOnObject", 24, 3, -2),
    Sketcher.Constraint("PointOnObject", 25, 3, -2),
    Sketcher.Constraint("Horizontal", 2, 3, 3, 3),
    Sketcher.Constraint("Horizontal", 1, 3, 4, 3),
    Sketcher.Constraint("Horizontal", 0, 3, 5, 3),
    Sketcher.Constraint("Horizontal", 7, 3, 14, 3),
    Sketcher.Constraint("Horizontal", 6, 3, 15, 3),
    Sketcher.Constraint("Horizontal", 18, 3, 22, 3),
    Sketcher.Constraint("Horizontal", 19, 3, 23, 3),
    Sketcher.Constraint("Horizontal", 21, 3, 24, 3),
    Sketcher.Constraint("Horizontal", 20, 3, 25, 3),
    Sketcher.Constraint("Vertical", 0, 3, 1, 3),
    Sketcher.Constraint("Vertical", 1, 3, 2, 3),
    Sketcher.Constraint("Vertical", 3, 3, 4, 3),
    Sketcher.Constraint("Vertical", 4, 3, 5, 3),
    Sketcher.Constraint("Vertical", 6, 3, 7, 3),
    Sketcher.Constraint("Vertical", 13, 3, 18, 3),
    Sketcher.Constraint("Vertical", 18, 3, 19, 3),
    Sketcher.Constraint("Vertical", 17, 3, 20, 3),
    Sketcher.Constraint("Vertical", 20, 3, 21, 3),
    Sketcher.Constraint("Vertical", 12, 3, 22, 3),
    Sketcher.Constraint("Vertical", 22, 3, 23, 3),
    Sketcher.Constraint("Diameter", 0, Q("2.25 in")),
    Sketcher.Constraint("DistanceY", -1, 1, 2, 3, Q("3 in")),
    Sketcher.Constraint("DistanceY", -1, 1, 18, 3, Q("21.5 in")),
    Sketcher.Constraint("DistanceY", -1, 1, 0, 3, Q("12.25 in")),
    Sketcher.Constraint("DistanceY", 9, 3, 19, 3, Q("9.25 in")),
    Sketcher.Constraint("DistanceY", -1, 1, 1, 3, Q("7.625 in")),
    Sketcher.Constraint("DistanceY", -1, 1, 6, 3, Q("9.9375 in")),
    Sketcher.Constraint("DistanceY", -1, 1, 7, 3, Q("5.3125 in")),
    Sketcher.Constraint("DistanceY", -1, 1, 20, 3, Q("14.5625 in")),
    Sketcher.Constraint("DistanceY", -1, 1, 21, 3, Q("19.1875 in")),
    Sketcher.Constraint("DistanceX", 3, 3, -1, 1, 100.945101),
    Sketcher.Constraint("DistanceX", 6, 3, 4, 3, 100.945101),
    Sketcher.Constraint("DistanceX", 0, 3, 6, 3, 100.945101),
])
sketch7.setExpression("Constraints[69]", "Params.sketch7_diameter")
pocket5 = body.newObject("PartDesign::Pocket", "Pocket004")
pocket5.Profile = sketch7
pocket5.Type = "ThroughAll"

# Sketch on XZ plane
sketch8 = body.newObject("Sketcher::SketchObject", "Sketch007")
sketch8.AttachmentSupport = (doc.getObject("XZ_Plane"), [""])
sketch8.MapMode = "FlatFace"
sketch8.AttachmentOffset = App.Placement(App.Vector(0, 0, -4 * 25.4), App.Rotation())
add_polygon(sketch8, [(148, 660), (148, 647), (161, 647), (161, 660)])  # lines 0-3
add_polygon(sketch8, [(-161, 660), (-161, 647), (-148, 647), (-148, 660)])  # lines 4-7
sketch8.addConstraint([
    Sketcher.Constraint("Vertical", 0),
    Sketcher.Constraint("Horizontal", 1),
    Sketcher.Constraint("Vertical", 2),
    Sketcher.Constraint("Horizontal", 3),
    Sketcher.Constraint("Vertical", 4),
    Sketcher.Constraint("Horizontal", 5),
    Sketcher.Constraint("Vertical", 6),
    Sketcher.Constraint("Horizontal", 7),
    Sketcher.Constraint("Symmetric", 1, 2, 4, 2, -2),
    Sketcher.Constraint("Symmetric", 3, 2, 6, 2, -2),
    Sketcher.Constraint("Equal", 7, 0),
    Sketcher.Constraint("DistanceX", 1, 1, 1, 2, Q("0.5 in")),
    Sketcher.Constraint("DistanceX", -1, 1, 0, 2, 148.470606),
    Sketcher.Constraint("DistanceY", -1, 1, 0, 2, 647.211358),
])
sketch8.setExpression("Constraints[19]", "Params.sketch8_width")
pad3 = body.newObject("PartDesign::Pad", "Pad002")
pad3.Profile = sketch8
pad3.setExpression("Length", "Params.pad3_length")

# Sketch on XZ plane
sketch9 = body.newObject("Sketcher::SketchObject", "Sketch008")
sketch9.AttachmentSupport = (doc.getObject("XZ_Plane"), [""])
sketch9.MapMode = "FlatFace"
sketch9.AttachmentOffset = App.Placement(App.Vector(0, 0, -0.5 * 25.4), App.Rotation())
add_polygon(sketch9, [(388, 660), (388, 647), (444, 647), (444, 660)])  # lines 0-3
add_polygon(sketch9, [(-444, 660), (-444, 647), (-388, 647), (-388, 660)])  # lines 4-7
add_polygon(sketch9, [(-342, 660), (-342, 647), (342, 647), (342, 660)])  # lines 8-11
sketch9.addConstraint([
    Sketcher.Constraint("Vertical", 0),
    Sketcher.Constraint("Horizontal", 1),
    Sketcher.Constraint("Vertical", 2),
    Sketcher.Constraint("Horizontal", 3),
    Sketcher.Constraint("Vertical", 4),
    Sketcher.Constraint("Horizontal", 5),
    Sketcher.Constraint("Vertical", 6),
    Sketcher.Constraint("Horizontal", 7),
    Sketcher.Constraint("Vertical", 8),
    Sketcher.Constraint("Horizontal", 9),
    Sketcher.Constraint("Vertical", 10),
    Sketcher.Constraint("Horizontal", 11),
    Sketcher.Constraint("Symmetric", 1, 2, 4, 2, -2),
    Sketcher.Constraint("Symmetric", 3, 2, 6, 2, -2),
    Sketcher.Constraint("Horizontal", 5, 2, 8, 2),
    Sketcher.Constraint("Horizontal", 7, 2, 10, 2),
    Sketcher.Constraint("DistanceY", 0, 2, 0, 1, Q("0.5 in")),
    Sketcher.Constraint("DistanceX", 4, 2, 1, 2, Q("35 in")),
    Sketcher.Constraint("DistanceX", 8, 2, 0, 2, Q("28.75 in")),
    Sketcher.Constraint("DistanceX", 1, 1, 1, 2, 56.167652),
    Sketcher.Constraint("DistanceX", 9, 1, 9, 2, 683.835303),
    Sketcher.Constraint("DistanceY", -1, 1, 0, 2, 647.211358),
])
sketch9.setExpression("Constraints[28]", "Params.sketch9_height")
pad4 = body.newObject("PartDesign::Pad", "Pad003")
pad4.Profile = sketch9
pad4.setExpression("Length", "Params.pad4_length")

doc.recompute()
